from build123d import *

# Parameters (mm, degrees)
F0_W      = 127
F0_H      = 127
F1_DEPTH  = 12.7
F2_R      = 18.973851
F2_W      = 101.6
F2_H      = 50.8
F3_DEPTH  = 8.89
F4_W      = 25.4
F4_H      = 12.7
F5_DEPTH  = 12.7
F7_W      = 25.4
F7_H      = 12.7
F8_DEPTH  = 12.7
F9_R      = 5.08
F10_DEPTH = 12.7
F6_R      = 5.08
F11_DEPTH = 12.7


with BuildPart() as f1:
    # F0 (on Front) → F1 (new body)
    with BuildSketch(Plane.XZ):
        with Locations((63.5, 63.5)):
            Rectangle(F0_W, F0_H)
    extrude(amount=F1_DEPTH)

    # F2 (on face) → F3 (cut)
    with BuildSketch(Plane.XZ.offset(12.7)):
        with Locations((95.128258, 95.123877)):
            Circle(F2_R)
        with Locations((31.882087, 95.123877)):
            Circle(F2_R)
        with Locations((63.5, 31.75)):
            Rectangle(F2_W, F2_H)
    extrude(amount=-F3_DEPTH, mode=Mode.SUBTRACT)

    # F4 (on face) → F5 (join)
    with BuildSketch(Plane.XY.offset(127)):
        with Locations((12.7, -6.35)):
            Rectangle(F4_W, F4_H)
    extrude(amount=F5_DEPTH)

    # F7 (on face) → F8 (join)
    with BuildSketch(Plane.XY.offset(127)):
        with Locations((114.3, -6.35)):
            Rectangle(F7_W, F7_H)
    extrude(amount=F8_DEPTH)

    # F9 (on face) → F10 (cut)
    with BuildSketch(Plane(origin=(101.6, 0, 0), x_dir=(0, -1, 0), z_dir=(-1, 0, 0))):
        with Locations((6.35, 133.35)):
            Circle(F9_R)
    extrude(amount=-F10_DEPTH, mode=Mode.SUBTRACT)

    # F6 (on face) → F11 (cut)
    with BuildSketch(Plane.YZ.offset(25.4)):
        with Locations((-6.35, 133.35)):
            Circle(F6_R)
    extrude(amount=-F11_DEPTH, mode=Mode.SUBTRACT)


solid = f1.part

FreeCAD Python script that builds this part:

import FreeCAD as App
import Part
import Sketcher
Q = App.Units.Quantity

doc = App.newDocument("Part")
body = doc.addObject("PartDesign::Body", "Body")

# Sketch on XZ plane
sketch1 = body.newObject("Sketcher::SketchObject", "Sketch")
sketch1.AttachmentSupport = (doc.getObject("XZ_Plane"), [""])
sketch1.MapMode = "FlatFace"
sketch1.addGeometry([
    Part.LineSegment(App.Vector(0, 127, 0), App.Vector(0, 0, 0)),
    Part.LineSegment(App.Vector(0, 0, 0), App.Vector(127, 0, 0)),
    Part.LineSegment(App.Vector(127, 0, 0), App.Vector(127, 127, 0)),
    Part.LineSegment(App.Vector(127, 127, 0), App.Vector(0, 127, 0)),
], False)
sketch1.addConstraint([
    Sketcher.Constraint("Coincident", 0, 2, 1, 1),
    Sketcher.Constraint("Coincident", 1, 2, 2, 1),
    Sketcher.Constraint("Coincident", 2, 2, 3, 1),
    Sketcher.Constraint("Coincident", 3, 2, 0, 1),
    Sketcher.Constraint("Vertical", 0),
    Sketcher.Constraint("Horizontal", 1),
    Sketcher.Constraint("Vertical", 2),
    Sketcher.Constraint("Horizontal", 3),
    Sketcher.Constraint("Coincident", 0, 2, -1, 1),
    Sketcher.Constraint("Equal", 3, 0),
    Sketcher.Constraint("DistanceX", 1, 1, 1, 2, Q("5 in")),
])
pad1 = body.newObject("PartDesign::Pad", "Pad")
pad1.Profile = sketch1
pad1.Length = Q("0.5 in")

# Sketch on XZ plane
sketch2 = body.newObject("Sketcher::SketchObject", "Sketch001")
sketch2.AttachmentSupport = (doc.getObject("XZ_Plane"), [""])
sketch2.MapMode = "FlatFace"
sketch2.AttachmentOffset = App.Placement(App.Vector(0, 0, 0.5 * 25.4), App.Rotation())
sketch2.addGeometry([
    Part.Circle(App.Vector(95.128258, 95.123877, 0), App.Vector(0, 0, 1), 18.973851),  # 0
    Part.Circle(App.Vector(31.882087, 95.123877, 0), App.Vector(0, 0, 1), 18.973851),  # 1
    Part.LineSegment(App.Vector(12.7, 57.15, 0), App.Vector(12.7, 6.35, 0)),  # 2
    Part.LineSegment(App.Vector(12.7, 6.35, 0), App.Vector(114.3, 6.35, 0)),  # 3
    Part.LineSegment(App.Vector(114.3, 6.35, 0), App.Vector(114.3, 57.15, 0)),  # 4
    Part.LineSegment(App.Vector(114.3, 57.15, 0), App.Vector(12.7, 57.15, 0)),  # 5
], False)
sketch2.addConstraint([
    Sketcher.Constraint("Coincident", 2, 2, 3, 1),
    Sketcher.Constraint("Coincident", 3, 2, 4, 1),
    Sketcher.Constraint("Coincident", 4, 2, 5, 1),
    Sketcher.Constraint("Coincident", 5, 2, 2, 1),
    Sketcher.Constraint("Vertical", 2),
    Sketcher.Constraint("Horizontal", 3),
    Sketcher.Constraint("Vertical", 4),
    Sketcher.Constraint("Horizontal", 5),
    Sketcher.Constraint("Equal", 0, 1),
    Sketcher.Constraint("Horizontal", 0, 3, 1, 3),
    Sketcher.Constraint("DistanceX", 3, 1, 3, 2, Q("4 in")),
    Sketcher.Constraint("DistanceY", 2, 2, 2, 1, Q("2 in")),
    Sketcher.Constraint("DistanceX", -1, 1, 2, 2, Q("0.5 in")),
    Sketcher.Constraint("DistanceY", -1, 1, 2, 2, Q("0.25 in")),
    Sketcher.Constraint("Diameter", 0, 37.947702),
    Sketcher.Constraint("DistanceX", -1, 1, 0, 3, 95.128258),
    Sketcher.Constraint("DistanceX", 1, 3, 0, 3, 63.246171),
    Sketcher.Constraint("DistanceY", -1, 1, 0, 3, 95.123877),
])
pocket1 = body.newObject("PartDesign::Pocket", "Pocket")
pocket1.Profile = sketch2
pocket1.Length = Q("0.35 in")

# Sketch on XY plane
sketch3 = body.newObject("Sketcher::SketchObject", "Sketch002")
sketch3.AttachmentSupport = (doc.getObject("XY_Plane"), [""])
sketch3.MapMode = "FlatFace"
sketch3.AttachmentOffset = App.Placement(App.Vector(0, 0, 5 * 25.4), App.Rotation())
sketch3.addGeometry([
    Part.LineSegment(App.Vector(0, 0, 0), App.Vector(0, -12.7, 0)),
    Part.LineSegment(App.Vector(0, -12.7, 0), App.Vector(25.4, -12.7, 0)),
    Part.LineSegment(App.Vector(25.4, -12.7, 0), App.Vector(25.4, 0, 0)),
    Part.LineSegment(App.Vector(25.4, 0, 0), App.Vector(0, 0, 0)),
], False)
sketch3.addConstraint([
    Sketcher.Constraint("Coincident", 0, 2, 1, 1),
    Sketcher.Constraint("Coincident", 1, 2, 2, 1),
    Sketcher.Constraint("Coincident", 2, 2, 3, 1),
    Sketcher.Constraint("Coincident", 3, 2, 0, 1),
    Sketcher.Constraint("Vertical", 0),
    Sketcher.Constraint("Horizontal", 1),
    Sketcher.Constraint("Vertical", 2),
    Sketcher.Constraint("Horizontal", 3),
    Sketcher.Constraint("Coincident", 3, 2, -1, 1),
    Sketcher.Constraint("DistanceX", 1, 1, 1, 2, Q("1 in")),
    Sketcher.Constraint("DistanceY", 0, 2, 0, 1, Q("0.5 in")),
])
pad2 = body.newObject("PartDesign::Pad", "Pad001")
pad2.Profile = sketch3
pad2.Length = Q("0.5 in")

# Sketch on XY plane
sketch4 = body.newObject("Sketcher::SketchObject", "Sketch003")
sketch4.AttachmentSupport = (doc.getObject("XY_Plane"), [""])
sketch4.MapMode = "FlatFace"
sketch4.AttachmentOffset = App.Placement(App.Vector(0, 0, 5 * 25.4), App.Rotation())
sketch4.addGeometry([
    Part.LineSegment(App.Vector(101.6, 0, 0), App.Vector(101.6, -12.7, 0)),
    Part.LineSegment(App.Vector(101.6, -12.7, 0), App.Vector(127, -12.7, 0)),
    Part.LineSegment(App.Vector(127, -12.7, 0), App.Vector(127, 0, 0)),
    Part.LineSegment(App.Vector(127, 0, 0), App.Vector(101.6, 0, 0)),
], False)
sketch4.addConstraint([
    Sketcher.Constraint("Coincident", 0, 2, 1, 1),
    Sketcher.Constraint("Coincident", 1, 2, 2, 1),
    Sketcher.Constraint("Coincident", 2, 2, 3, 1),
    Sketcher.Constraint("Coincident", 3, 2, 0, 1),
    Sketcher.Constraint("Vertical", 0),
    Sketcher.Constraint("Horizontal", 1),
    Sketcher.Constraint("Vertical", 2),
    Sketcher.Constraint("Horizontal", 3),
    Sketcher.Constraint("PointOnObject", 2, 2, -1),
    Sketcher.Constraint("DistanceX", 1, 1, 1, 2, Q("1 in")),
    Sketcher.Constraint("DistanceY", 0, 2, 0, 1, Q("0.5 in")),
    Sketcher.Constraint("DistanceX", -1, 1, 0, 2, Q("4 in")),
])
pad3 = body.newObject("PartDesign::Pad", "Pad002")
pad3.Profile = sketch4
pad3.Length = Q("0.5 in")

# Sketch on YZ plane
sketch5 = body.newObject("Sketcher::SketchObject", "Sketch004")
sketch5.AttachmentSupport = (doc.getObject("YZ_Plane"), [""])
sketch5.MapMode = "FlatFace"
sketch5.AttachmentOffset = App.Placement(App.Vector(0, 0, 4 * 25.4), App.Rotation())
sketch5.addGeometry(Part.Circle(App.Vector(-6.35, 133.35, 0), App.Vector(0, 0, 1), 5.08), False)
sketch5.addConstraint([
    Sketcher.Constraint("Diameter", 0, Q("0.4 in")),
    Sketcher.Constraint("DistanceX", 0, 3, -1, 1, Q("0.25 in")),
    Sketcher.Constraint("DistanceY", -1, 1, 0, 3, Q("5.25 in")),
])
pocket2 = body.newObject("PartDesign::Pocket", "Pocket001")
pocket2.Profile = sketch5
pocket2.Length = Q("0.5 in")
pocket2.Reversed = True

# Sketch on YZ plane
sketch6 = body.newObject("Sketcher::SketchObject", "Sketch005")
sketch6.AttachmentSupport = (doc.getObject("YZ_Plane"), [""])
sketch6.MapMode = "FlatFace"
sketch6.AttachmentOffset = App.Placement(App.Vector(0, 0, 1 * 25.4), App.Rotation())
sketch6.addGeometry(Part.Circle(App.Vector(-6.35, 133.35, 0), App.Vector(0, 0, 1), 5.08), False)
sketch6.addConstraint([
    Sketcher.Constraint("Diameter", 0, Q("0.4 in")),
    Sketcher.Constraint("DistanceX", 0, 3, -1, 1, Q("0.25 in")),
    Sketcher.Constraint("DistanceY", -1, 1, 0, 3, Q("5.25 in")),
])
pocket3 = body.newObject("PartDesign::Pocket", "Pocket002")
pocket3.Profile = sketch6
pocket3.Length = Q("0.5 in")

doc.recompute()
